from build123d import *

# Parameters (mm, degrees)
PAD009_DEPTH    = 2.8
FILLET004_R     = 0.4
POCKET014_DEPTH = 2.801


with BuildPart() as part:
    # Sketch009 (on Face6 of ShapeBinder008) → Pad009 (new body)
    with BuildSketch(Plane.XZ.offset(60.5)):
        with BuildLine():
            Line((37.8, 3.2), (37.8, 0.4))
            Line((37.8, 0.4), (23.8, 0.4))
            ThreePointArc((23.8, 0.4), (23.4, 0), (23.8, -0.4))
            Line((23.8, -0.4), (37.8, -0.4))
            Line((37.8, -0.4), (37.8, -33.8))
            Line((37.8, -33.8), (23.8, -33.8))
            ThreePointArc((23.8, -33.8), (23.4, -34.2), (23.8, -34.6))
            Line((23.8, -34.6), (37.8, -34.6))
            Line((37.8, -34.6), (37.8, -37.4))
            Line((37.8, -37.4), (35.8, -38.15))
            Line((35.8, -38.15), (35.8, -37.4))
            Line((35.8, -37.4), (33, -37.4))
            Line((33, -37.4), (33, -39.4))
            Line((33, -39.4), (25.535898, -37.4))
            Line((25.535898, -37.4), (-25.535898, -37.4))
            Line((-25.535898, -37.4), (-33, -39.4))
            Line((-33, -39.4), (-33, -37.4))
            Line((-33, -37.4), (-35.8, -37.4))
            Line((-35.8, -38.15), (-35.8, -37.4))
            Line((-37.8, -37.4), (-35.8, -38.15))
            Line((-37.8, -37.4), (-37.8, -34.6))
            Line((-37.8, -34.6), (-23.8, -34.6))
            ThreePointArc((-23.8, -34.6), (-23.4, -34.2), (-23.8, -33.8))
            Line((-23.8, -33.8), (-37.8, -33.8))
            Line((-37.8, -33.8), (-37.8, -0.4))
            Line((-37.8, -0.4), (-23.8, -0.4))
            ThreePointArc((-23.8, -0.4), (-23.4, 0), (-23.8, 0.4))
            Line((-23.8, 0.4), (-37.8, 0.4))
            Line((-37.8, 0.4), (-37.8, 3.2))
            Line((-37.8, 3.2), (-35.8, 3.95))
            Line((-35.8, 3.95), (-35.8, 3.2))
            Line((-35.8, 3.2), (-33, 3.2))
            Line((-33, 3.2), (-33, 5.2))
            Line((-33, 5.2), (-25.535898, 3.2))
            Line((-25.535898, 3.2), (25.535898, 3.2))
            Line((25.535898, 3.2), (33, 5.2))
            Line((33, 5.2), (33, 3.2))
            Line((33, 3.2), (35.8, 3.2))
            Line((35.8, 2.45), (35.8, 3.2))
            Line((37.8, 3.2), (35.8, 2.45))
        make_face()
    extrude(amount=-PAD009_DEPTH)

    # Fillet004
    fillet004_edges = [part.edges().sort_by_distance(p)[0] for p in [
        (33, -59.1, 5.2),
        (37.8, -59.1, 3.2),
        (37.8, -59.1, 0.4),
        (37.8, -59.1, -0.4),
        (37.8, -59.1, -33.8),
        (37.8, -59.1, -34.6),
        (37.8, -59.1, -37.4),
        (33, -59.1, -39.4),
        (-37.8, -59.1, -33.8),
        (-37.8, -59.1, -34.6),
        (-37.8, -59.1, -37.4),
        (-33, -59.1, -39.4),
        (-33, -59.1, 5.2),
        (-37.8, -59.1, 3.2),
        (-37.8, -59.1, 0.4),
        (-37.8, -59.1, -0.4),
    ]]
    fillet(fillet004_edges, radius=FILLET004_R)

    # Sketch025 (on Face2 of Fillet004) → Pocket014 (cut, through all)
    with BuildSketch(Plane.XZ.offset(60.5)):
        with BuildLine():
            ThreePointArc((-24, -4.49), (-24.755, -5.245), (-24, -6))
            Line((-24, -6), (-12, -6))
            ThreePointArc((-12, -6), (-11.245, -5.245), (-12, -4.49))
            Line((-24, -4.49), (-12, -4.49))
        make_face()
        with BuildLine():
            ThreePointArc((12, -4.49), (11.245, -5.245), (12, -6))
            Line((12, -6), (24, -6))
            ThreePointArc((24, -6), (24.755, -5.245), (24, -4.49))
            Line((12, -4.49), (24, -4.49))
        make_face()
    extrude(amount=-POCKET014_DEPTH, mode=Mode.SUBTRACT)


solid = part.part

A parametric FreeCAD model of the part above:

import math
import FreeCAD as App
import Part
import Sketcher

V = App.Vector
Q = App.Units.Quantity


def edges_at(feature, points):
    """Names of the edges that pass closest to the given points."""
    edges = feature.Shape.Edges
    near = lambda p: min(range(len(edges)), key=lambda i: edges[i].distToShape(Part.Vertex(*p))[0])
    return sorted({f"Edge{near(p) + 1}" for p in points})

doc = App.newDocument("Part")
body = doc.addObject("PartDesign::Body", "Body")

sketch1 = doc.addObject("Sketcher::SketchObject", "Sketch")
body.addObject(sketch1)
sketch1.AttachmentSupport = (doc.XZ_Plane, [""])
sketch1.MapMode = "FlatFace"
sketch1.AttachmentOffset = App.Placement(V(0, 0, 60.5), App.Rotation())
sketch1.addGeometry([
    Part.LineSegment(V(37.8, 0.4, 0), V(37.8, 3.2, 0)),
    Part.LineSegment(V(37.8, 3.2, 0), V(35.8, 2.45, 0)),
    Part.LineSegment(V(35.8, 2.45, 0), V(35.8, 3.2, 0)),
    Part.LineSegment(V(35.8, 3.2, 0), V(33, 3.2, 0)),
    Part.LineSegment(V(33, 3.2, 0), V(33, 5.2, 0)),
    Part.LineSegment(V(33, 5.2, 0), V(25.54, 3.2, 0)),
    Part.LineSegment(V(25.54, 3.2, 0), V(-25.54, 3.2, 0)),
    Part.LineSegment(V(-25.54, 3.2, 0), V(-33, 5.2, 0)),
    Part.LineSegment(V(-33, 5.2, 0), V(-33, 3.2, 0)),
    Part.LineSegment(V(-33, 3.2, 0), V(-35.8, 3.2, 0)),
    Part.LineSegment(V(-35.8, 3.2, 0), V(-35.8, 3.95, 0)),
    Part.LineSegment(V(-35.8, 3.95, 0), V(-37.8, 3.2, 0)),
    Part.LineSegment(V(-37.8, 3.2, 0), V(-37.8, 0.4, 0)),
    Part.LineSegment(V(-37.8, 0.4, 0), V(-23.8, 0.4, 0)),
    Part.ArcOfCircle(Part.Circle(V(-23.8, 0, 0), V(0, 0, 1), 0.4), math.radians(-90), math.radians(90)),
    Part.LineSegment(V(-23.8, -0.4, 0), V(-37.8, -0.4, 0)),
    Part.LineSegment(V(-37.8, -0.4, 0), V(-37.8, -33.8, 0)),
    Part.LineSegment(V(-37.8, -33.8, 0), V(-23.8, -33.8, 0)),
    Part.ArcOfCircle(Part.Circle(V(-23.8, -34.2, 0), V(0, 0, 1), 0.4), math.radians(-90), math.radians(90)),
    Part.LineSegment(V(-23.8, -34.6, 0), V(-37.8, -34.6, 0)),
    Part.LineSegment(V(-37.8, -34.6, 0), V(-37.8, -37.4, 0)),
    Part.LineSegment(V(-37.8, -37.4, 0), V(-35.8, -38.15, 0)),
    Part.LineSegment(V(-35.8, -38.15, 0), V(-35.8, -37.4, 0)),
    Part.LineSegment(V(-35.8, -37.4, 0), V(-33, -37.4, 0)),
    Part.LineSegment(V(-33, -37.4, 0), V(-33, -39.4, 0)),
    Part.LineSegment(V(-33, -39.4, 0), V(-25.54, -37.4, 0)),
    Part.LineSegment(V(-25.54, -37.4, 0), V(25.54, -37.4, 0)),
    Part.LineSegment(V(25.54, -37.4, 0), V(33, -39.4, 0)),
    Part.LineSegment(V(33, -39.4, 0), V(33, -37.4, 0)),
    Part.LineSegment(V(33, -37.4, 0), V(35.8, -37.4, 0)),
    Part.LineSegment(V(35.8, -37.4, 0), V(35.8, -38.15, 0)),
    Part.LineSegment(V(35.8, -38.15, 0), V(37.8, -37.4, 0)),
    Part.LineSegment(V(37.8, -37.4, 0), V(37.8, -34.6, 0)),
    Part.LineSegment(V(37.8, -34.6, 0), V(23.8, -34.6, 0)),
    Part.ArcOfCircle(Part.Circle(V(23.8, -34.2, 0), V(0, 0, 1), 0.4), math.radians(90), math.radians(270)),
    Part.LineSegment(V(23.8, -33.8, 0), V(37.8, -33.8, 0)),
    Part.LineSegment(V(37.8, -33.8, 0), V(37.8, -0.4, 0)),
    Part.LineSegment(V(37.8, -0.4, 0), V(23.8, -0.4, 0)),
    Part.ArcOfCircle(Part.Circle(V(23.8, 0, 0), V(0, 0, 1), 0.4), math.radians(90), math.radians(270)),
    Part.LineSegment(V(23.8, 0.4, 0), V(37.8, 0.4, 0)),
], False)
sketch1.addConstraint([
    Sketcher.Constraint("Coincident", 0, 2, 1, 1),
    Sketcher.Constraint("Coincident", 1, 2, 2, 1),
    Sketcher.Constraint("Coincident", 2, 2, 3, 1),
    Sketcher.Constraint("Coincident", 3, 2, 4, 1),
    Sketcher.Constraint("Coincident", 4, 2, 5, 1),
    Sketcher.Constraint("Coincident", 5, 2, 6, 1),
    Sketcher.Constraint("Coincident", 6, 2, 7, 1),
    Sketcher.Constraint("Coincident", 7, 2, 8, 1),
    Sketcher.Constraint("Coincident", 8, 2, 9, 1),
    Sketcher.Constraint("Coincident", 9, 2, 10, 1),
    Sketcher.Constraint("Coincident", 10, 2, 11, 1),
    Sketcher.Constraint("Coincident", 11, 2, 12, 1),
    Sketcher.Constraint("Coincident", 12, 2, 13, 1),
    Sketcher.Constraint("Tangent", 13, 2, 14, 2),
    Sketcher.Constraint("Tangent", 14, 1, 15, 1),
    Sketcher.Constraint("Coincident", 15, 2, 16, 1),
    Sketcher.Constraint("Coincident", 16, 2, 17, 1),
    Sketcher.Constraint("Tangent", 17, 2, 18, 2),
    Sketcher.Constraint("Tangent", 18, 1, 19, 1),
    Sketcher.Constraint("Coincident", 19, 2, 20, 1),
    Sketcher.Constraint("Coincident", 20, 2, 21, 1),
    Sketcher.Constraint("Coincident", 21, 2, 22, 1),
    Sketcher.Constraint("Coincident", 22, 2, 23, 1),
    Sketcher.Constraint("Coincident", 23, 2, 24, 1),
    Sketcher.Constraint("Coincident", 24, 2, 25, 1),
    Sketcher.Constraint("Coincident", 25, 2, 26, 1),
    Sketcher.Constraint("Coincident", 26, 2, 27, 1),
    Sketcher.Constraint("Coincident", 27, 2, 28, 1),
    Sketcher.Constraint("Coincident", 28, 2, 29, 1),
    Sketcher.Constraint("Coincident", 29, 2, 30, 1),
    Sketcher.Constraint("Coincident", 30, 2, 31, 1),
    Sketcher.Constraint("Coincident", 31, 2, 32, 1),
    Sketcher.Constraint("Coincident", 32, 2, 33, 1),
    Sketcher.Constraint("Tangent", 33, 2, 34, 2),
    Sketcher.Constraint("Tangent", 34, 1, 35, 1),
    Sketcher.Constraint("Coincident", 35, 2, 36, 1),
    Sketcher.Constraint("Coincident", 36, 2, 37, 1),
    Sketcher.Constraint("Tangent", 37, 2, 38, 2),
    Sketcher.Constraint("Tangent", 38, 1, 39, 1),
    Sketcher.Constraint("Coincident", 39, 2, 0, 1),
    Sketcher.Constraint("Vertical", 0),
    Sketcher.Constraint("Vertical", 2),
    Sketcher.Constraint("Horizontal", 3),
    Sketcher.Constraint("Vertical", 4),
    Sketcher.Constraint("Horizontal", 6),
    Sketcher.Constraint("Vertical", 8),
    Sketcher.Constraint("Horizontal", 9),
    Sketcher.Constraint("Vertical", 10),
    Sketcher.Constraint("Vertical", 12),
    Sketcher.Constraint("Horizontal", 13),
    Sketcher.Constraint("Horizontal", 15),
    Sketcher.Constraint("Vertical", 16),
    Sketcher.Constraint("Horizontal", 17),
    Sketcher.Constraint("Horizontal", 19),
    Sketcher.Constraint("Vertical", 20),
    Sketcher.Constraint("Vertical", 22),
    Sketcher.Constraint("Horizontal", 23),
    Sketcher.Constraint("Vertical", 24),
    Sketcher.Constraint("Horizontal", 26),
    Sketcher.Constraint("Vertical", 28),
    Sketcher.Constraint("Horizontal", 29),
    Sketcher.Constraint("Vertical", 30),
    Sketcher.Constraint("Vertical", 32),
    Sketcher.Constraint("Horizontal", 33),
    Sketcher.Constraint("Horizontal", 35),
    Sketcher.Constraint("Vertical", 36),
    Sketcher.Constraint("Horizontal", 37),
    Sketcher.Constraint("Horizontal", 39),
    Sketcher.Constraint("Equal", 14, 18),
    Sketcher.Constraint("Equal", 18, 34),
    Sketcher.Constraint("Equal", 34, 38),
    Sketcher.Constraint("Symmetric", 14, 3, 38, 3, -1, 1),
    Sketcher.Constraint("Symmetric", 18, 3, 34, 3, -2),
    Sketcher.Constraint("Symmetric", 4, 2, 7, 2, -2),
    Sketcher.Constraint("Symmetric", 2, 2, 9, 2, -2),
    Sketcher.Constraint("Symmetric", 0, 2, 11, 2, -2),
    Sketcher.Constraint("Symmetric", 24, 2, 27, 2, -2),
    Sketcher.Constraint("Symmetric", 22, 2, 29, 2, -2),
    Sketcher.Constraint("Symmetric", 20, 2, 31, 2, -2),
    Sketcher.Constraint("Symmetric", 15, 2, 36, 2, -2),
    Sketcher.Constraint("Parallel", 1, 11),
    Sketcher.Constraint("Parallel", 5, 25),
    Sketcher.Constraint("Parallel", 7, 27),
    Sketcher.Constraint("Parallel", 11, 31),
    Sketcher.Constraint("Horizontal", 0, 2, 2, 2),
    Sketcher.Constraint("Horizontal", 3, 2, 5, 2),
    Sketcher.Constraint("Horizontal", 20, 2, 22, 2),
    Sketcher.Constraint("Horizontal", 23, 2, 25, 2),
    Sketcher.Constraint("Horizontal", 21, 2, 30, 2),
    Sketcher.Constraint("Vertical", 14, 3, 18, 3),
    Sketcher.Constraint("Vertical", 12, 2, 15, 2),
    Sketcher.Constraint("Vertical", 16, 2, 19, 2),
    Sketcher.Constraint("Vertical", 10, 2, 21, 2),
    Sketcher.Constraint("Vertical", 8, 2, 23, 2),
    Sketcher.Constraint("Vertical", 6, 2, 25, 2),
    Sketcher.Constraint("Vertical", 5, 2, 26, 2),
    Sketcher.Constraint("Equal", 29, 0),
    Sketcher.Constraint("Equal", 12, 20),
    Sketcher.Constraint("Radius", 14, 0.4),
    Sketcher.Constraint("DistanceX", 13, 1, 13, 2, 14.0),
    Sketcher.Constraint("DistanceY", 4, 1, 4, 2, 2.0),
    Sketcher.Constraint("Angle", 5, Q("-165.000001 deg")),
    Sketcher.Constraint("DistanceX", 3, 2, 3, 1, 2.8),
    Sketcher.Constraint("DistanceY", 16, 2, 16, 1, 33.4),
    Sketcher.Constraint("DistanceX", -1, 1, 3, 2, 33.0),
    Sketcher.Constraint("DistanceX", 1, 2, 0, 2, 2.0),
    Sketcher.Constraint("DistanceY", 2, 1, 2, 2, 0.75),
])
pad1 = doc.addObject("PartDesign::Pad", "Pad")
body.addObject(pad1)
pad1.Profile = sketch1
pad1.Length = 2.8
pad1.Reversed = True
doc.recompute()

fillet = doc.addObject("PartDesign::Fillet", "Fillet")
body.addObject(fillet)
fillet.Base = (pad1, edges_at(pad1, [
    (33, -59.1, 5.2),
    (37.8, -59.1, 3.2),
    (37.8, -59.1, 0.4),
    (37.8, -59.1, -0.4),
    (37.8, -59.1, -33.8),
    (37.8, -59.1, -34.6),
    (37.8, -59.1, -37.4),
    (33, -59.1, -39.4),
    (-37.8, -59.1, -33.8),
    (-37.8, -59.1, -34.6),
    (-37.8, -59.1, -37.4),
    (-33, -59.1, -39.4),
    (-33, -59.1, 5.2),
    (-37.8, -59.1, 3.2),
    (-37.8, -59.1, 0.4),
    (-37.8, -59.1, -0.4),
]))
fillet.Radius = 0.4

sketch2 = doc.addObject("Sketcher::SketchObject", "Sketch001")
body.addObject(sketch2)
sketch2.AttachmentSupport = (doc.XZ_Plane, [""])
sketch2.MapMode = "FlatFace"
sketch2.AttachmentOffset = App.Placement(V(0, 0, 60.5), App.Rotation())
sketch2.addGeometry([
    Part.ArcOfCircle(Part.Circle(V(-24, -5.2, 0), V(0, 0, 1), 0.8), math.radians(90), math.radians(270)),
    Part.LineSegment(V(-24, -6, 0), V(-12, -6, 0)),
    Part.ArcOfCircle(Part.Circle(V(-12, -5.2, 0), V(0, 0, 1), 0.8), math.radians(-90), math.radians(90)),
    Part.LineSegment(V(-12, -4.5, 0), V(-24, -4.5, 0)),
    Part.ArcOfCircle(Part.Circle(V(12, -5.2, 0), V(0, 0, 1), 0.8), math.radians(90), math.radians(270)),
    Part.LineSegment(V(12, -6, 0), V(24, -6, 0)),
    Part.ArcOfCircle(Part.Circle(V(24, -5.2, 0), V(0, 0, 1), 0.8), math.radians(-90), math.radians(90)),
    Part.LineSegment(V(24, -4.5, 0), V(12, -4.5, 0)),
], False)
sketch2.addConstraint([
    Sketcher.Constraint("Tangent", 0, 2, 1, 1),
    Sketcher.Constraint("Tangent", 1, 2, 2, 1),
    Sketcher.Constraint("Tangent", 2, 2, 3, 1),
    Sketcher.Constraint("Tangent", 3, 2, 0, 1),
    Sketcher.Constraint("Tangent", 4, 2, 5, 1),
    Sketcher.Constraint("Tangent", 5, 2, 6, 1),
    Sketcher.Constraint("Tangent", 6, 2, 7, 1),
    Sketcher.Constraint("Tangent", 7, 2, 4, 1),
    Sketcher.Constraint("Horizontal", 1),
    Sketcher.Constraint("Horizontal", 3),
    Sketcher.Constraint("Horizontal", 5),
    Sketcher.Constraint("Horizontal", 7),
    Sketcher.Constraint("Equal", 2, 4),
    Sketcher.Constraint("Symmetric", 2, 3, 4, 3, -2),
    Sketcher.Constraint("Equal", 3, 5),
    Sketcher.Constraint("DistanceX", 1, 1, 1, 2, 12.0),
    Sketcher.Constraint("DistanceX", 0, 3, -1, 1, 24.0),
    Sketcher.Constraint("DistanceY", 0, 2, -1, 1, 6.0),
    Sketcher.Constraint("Radius", 0, 0.755),
])
pocket1 = doc.addObject("PartDesign::Pocket", "Pocket")
body.addObject(pocket1)
pocket1.Profile = sketch2
pocket1.Type = "ThroughAll"

doc.recompute()
